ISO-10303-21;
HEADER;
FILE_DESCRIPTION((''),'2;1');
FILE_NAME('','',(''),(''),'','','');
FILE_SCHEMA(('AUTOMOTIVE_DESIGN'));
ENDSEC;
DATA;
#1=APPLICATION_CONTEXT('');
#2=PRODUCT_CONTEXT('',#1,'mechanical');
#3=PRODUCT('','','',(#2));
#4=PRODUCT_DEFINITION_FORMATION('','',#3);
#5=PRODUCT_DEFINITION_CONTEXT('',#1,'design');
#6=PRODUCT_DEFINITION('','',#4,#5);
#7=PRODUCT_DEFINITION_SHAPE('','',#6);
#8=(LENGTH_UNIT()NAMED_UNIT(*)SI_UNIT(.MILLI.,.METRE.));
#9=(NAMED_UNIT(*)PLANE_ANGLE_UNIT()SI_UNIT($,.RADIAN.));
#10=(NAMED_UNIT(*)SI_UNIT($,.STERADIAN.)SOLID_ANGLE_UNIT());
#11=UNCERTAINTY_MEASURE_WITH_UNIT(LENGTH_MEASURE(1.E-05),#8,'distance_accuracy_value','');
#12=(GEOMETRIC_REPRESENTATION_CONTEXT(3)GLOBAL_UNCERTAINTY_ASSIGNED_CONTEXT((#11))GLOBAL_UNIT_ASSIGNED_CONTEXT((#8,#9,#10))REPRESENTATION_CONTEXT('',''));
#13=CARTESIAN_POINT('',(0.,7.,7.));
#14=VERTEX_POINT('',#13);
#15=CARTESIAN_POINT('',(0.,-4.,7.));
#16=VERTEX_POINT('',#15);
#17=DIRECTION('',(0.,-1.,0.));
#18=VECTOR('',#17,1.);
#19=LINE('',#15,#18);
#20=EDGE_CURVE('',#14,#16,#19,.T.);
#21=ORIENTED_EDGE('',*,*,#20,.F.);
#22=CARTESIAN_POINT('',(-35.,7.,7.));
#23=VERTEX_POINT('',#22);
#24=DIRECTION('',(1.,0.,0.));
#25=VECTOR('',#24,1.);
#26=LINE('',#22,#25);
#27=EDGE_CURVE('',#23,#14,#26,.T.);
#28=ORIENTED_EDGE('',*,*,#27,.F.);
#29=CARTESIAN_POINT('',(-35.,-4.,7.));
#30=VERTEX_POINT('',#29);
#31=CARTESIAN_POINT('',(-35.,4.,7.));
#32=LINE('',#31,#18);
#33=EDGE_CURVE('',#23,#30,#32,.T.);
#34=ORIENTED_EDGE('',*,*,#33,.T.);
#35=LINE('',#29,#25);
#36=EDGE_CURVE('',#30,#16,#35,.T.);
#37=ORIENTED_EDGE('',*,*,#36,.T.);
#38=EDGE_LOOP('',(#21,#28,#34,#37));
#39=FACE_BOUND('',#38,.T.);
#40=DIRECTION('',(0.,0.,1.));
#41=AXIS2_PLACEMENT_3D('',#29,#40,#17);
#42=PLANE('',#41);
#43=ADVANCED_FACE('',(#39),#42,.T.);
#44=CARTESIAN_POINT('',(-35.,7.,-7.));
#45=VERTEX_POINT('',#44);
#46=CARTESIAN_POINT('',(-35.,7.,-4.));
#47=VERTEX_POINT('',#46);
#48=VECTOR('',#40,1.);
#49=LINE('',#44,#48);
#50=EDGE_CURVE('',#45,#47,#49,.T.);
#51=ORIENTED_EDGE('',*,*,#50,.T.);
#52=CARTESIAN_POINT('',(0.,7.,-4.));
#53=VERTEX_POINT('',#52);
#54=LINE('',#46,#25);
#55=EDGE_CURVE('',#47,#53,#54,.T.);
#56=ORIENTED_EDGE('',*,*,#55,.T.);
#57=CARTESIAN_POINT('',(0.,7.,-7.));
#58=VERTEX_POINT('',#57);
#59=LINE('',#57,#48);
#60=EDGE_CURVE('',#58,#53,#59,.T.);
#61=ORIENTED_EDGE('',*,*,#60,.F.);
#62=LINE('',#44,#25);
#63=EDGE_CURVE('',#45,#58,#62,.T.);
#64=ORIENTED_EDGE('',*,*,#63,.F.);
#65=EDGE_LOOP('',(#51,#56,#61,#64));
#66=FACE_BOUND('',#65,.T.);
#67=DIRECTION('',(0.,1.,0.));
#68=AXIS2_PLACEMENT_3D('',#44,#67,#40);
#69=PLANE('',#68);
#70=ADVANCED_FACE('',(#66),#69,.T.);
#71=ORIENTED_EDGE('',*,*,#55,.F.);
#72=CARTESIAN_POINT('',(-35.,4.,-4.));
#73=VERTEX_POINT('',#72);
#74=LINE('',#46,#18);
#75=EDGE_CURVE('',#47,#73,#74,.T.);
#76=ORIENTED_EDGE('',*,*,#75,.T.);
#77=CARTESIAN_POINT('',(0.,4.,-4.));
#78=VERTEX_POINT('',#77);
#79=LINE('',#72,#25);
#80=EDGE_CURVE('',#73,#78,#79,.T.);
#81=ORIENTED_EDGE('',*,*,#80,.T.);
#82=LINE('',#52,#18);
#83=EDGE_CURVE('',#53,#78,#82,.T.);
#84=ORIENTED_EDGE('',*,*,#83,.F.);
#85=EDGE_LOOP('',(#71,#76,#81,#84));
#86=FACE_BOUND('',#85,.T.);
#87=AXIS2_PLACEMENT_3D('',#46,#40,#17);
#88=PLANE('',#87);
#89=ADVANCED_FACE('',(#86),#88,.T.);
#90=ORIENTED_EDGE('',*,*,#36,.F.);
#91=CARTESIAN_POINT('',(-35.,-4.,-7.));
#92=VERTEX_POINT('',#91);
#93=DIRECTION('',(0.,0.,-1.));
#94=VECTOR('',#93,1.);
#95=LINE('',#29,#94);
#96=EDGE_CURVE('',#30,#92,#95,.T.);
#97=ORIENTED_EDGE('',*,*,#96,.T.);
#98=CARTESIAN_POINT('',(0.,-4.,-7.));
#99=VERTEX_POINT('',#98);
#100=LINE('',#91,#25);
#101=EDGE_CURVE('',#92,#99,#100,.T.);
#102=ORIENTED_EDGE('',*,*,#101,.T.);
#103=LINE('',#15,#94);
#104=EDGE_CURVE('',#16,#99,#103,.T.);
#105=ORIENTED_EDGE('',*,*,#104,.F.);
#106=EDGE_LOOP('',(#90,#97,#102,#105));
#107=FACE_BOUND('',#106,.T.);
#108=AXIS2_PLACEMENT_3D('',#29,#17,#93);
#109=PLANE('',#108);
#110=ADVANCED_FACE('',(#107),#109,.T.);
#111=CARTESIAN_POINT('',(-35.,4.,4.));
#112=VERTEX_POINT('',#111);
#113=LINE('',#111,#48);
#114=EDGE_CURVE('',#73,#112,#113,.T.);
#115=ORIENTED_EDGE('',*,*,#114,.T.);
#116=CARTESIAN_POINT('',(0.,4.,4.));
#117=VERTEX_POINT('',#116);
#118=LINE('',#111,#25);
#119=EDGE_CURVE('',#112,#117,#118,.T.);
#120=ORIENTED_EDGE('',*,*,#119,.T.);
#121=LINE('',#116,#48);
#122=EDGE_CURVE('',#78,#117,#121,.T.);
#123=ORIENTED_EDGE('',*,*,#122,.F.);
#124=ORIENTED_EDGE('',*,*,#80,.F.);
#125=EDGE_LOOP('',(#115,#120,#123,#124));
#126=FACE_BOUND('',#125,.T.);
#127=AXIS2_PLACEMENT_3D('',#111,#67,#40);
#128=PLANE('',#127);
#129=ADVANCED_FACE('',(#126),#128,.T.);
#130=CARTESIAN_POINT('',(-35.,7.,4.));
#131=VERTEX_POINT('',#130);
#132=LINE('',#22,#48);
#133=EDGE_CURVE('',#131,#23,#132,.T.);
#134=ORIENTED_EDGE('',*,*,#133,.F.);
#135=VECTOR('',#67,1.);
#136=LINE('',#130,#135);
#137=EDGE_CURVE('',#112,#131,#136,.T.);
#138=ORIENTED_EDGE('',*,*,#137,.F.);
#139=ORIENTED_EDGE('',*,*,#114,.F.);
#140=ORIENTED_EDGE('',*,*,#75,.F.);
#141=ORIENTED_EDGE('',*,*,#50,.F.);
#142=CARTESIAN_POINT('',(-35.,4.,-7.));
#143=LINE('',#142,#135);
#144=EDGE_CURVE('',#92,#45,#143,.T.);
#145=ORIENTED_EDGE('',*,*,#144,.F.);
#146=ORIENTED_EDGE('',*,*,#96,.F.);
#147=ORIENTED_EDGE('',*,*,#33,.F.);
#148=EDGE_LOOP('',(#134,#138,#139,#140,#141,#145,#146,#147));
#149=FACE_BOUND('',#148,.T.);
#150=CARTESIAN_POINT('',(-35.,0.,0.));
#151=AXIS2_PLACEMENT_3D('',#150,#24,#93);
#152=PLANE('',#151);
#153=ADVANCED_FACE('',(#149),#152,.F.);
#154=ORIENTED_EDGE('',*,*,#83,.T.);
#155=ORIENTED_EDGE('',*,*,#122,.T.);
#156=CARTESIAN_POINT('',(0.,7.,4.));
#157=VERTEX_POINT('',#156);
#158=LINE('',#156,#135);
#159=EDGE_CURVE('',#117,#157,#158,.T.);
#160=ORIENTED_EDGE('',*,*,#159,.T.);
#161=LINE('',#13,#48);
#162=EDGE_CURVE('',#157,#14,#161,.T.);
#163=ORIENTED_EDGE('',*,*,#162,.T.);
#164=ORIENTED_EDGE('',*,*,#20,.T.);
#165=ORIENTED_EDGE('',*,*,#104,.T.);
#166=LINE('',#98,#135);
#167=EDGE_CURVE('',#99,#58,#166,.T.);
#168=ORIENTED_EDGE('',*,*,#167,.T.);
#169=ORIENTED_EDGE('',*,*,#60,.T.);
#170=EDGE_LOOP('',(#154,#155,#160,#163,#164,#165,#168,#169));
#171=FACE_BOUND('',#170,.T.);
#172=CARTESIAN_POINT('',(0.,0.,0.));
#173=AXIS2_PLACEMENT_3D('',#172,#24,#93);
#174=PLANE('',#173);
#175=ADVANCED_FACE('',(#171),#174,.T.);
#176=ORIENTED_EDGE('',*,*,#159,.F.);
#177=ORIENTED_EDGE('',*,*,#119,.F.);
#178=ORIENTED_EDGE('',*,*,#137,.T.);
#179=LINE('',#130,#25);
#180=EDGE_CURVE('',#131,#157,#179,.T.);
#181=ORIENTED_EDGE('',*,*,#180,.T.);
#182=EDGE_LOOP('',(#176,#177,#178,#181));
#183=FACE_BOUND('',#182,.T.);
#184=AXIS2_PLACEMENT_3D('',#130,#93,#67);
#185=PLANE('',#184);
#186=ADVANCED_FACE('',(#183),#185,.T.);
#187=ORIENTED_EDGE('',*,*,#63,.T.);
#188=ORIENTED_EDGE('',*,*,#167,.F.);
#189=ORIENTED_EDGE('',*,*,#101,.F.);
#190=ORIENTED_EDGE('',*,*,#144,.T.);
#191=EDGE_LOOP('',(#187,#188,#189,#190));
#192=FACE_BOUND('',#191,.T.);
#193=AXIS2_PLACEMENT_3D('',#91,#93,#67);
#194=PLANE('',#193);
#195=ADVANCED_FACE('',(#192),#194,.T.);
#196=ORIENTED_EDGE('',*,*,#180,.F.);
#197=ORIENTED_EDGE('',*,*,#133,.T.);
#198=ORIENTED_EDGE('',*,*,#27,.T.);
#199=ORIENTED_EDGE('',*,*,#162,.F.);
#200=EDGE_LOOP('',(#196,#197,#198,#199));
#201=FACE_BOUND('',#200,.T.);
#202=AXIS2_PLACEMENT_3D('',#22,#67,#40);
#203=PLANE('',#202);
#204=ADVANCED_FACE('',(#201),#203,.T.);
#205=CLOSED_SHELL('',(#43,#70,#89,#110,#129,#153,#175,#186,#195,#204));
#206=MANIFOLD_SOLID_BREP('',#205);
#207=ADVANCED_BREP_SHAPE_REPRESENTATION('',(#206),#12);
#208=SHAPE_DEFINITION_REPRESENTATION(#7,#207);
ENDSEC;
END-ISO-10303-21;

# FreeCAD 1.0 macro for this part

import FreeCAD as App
import Part
import Sketcher

V = App.Vector


def add_polygon(sketch, points):
    """Adds a closed chain of lines whose ends are joined by coincident constraints."""
    first, n = sketch.GeometryCount, len(points)
    for a, b in zip(points, points[1:] + points[:1]):
        sketch.addGeometry(Part.LineSegment(App.Vector(*a, 0), App.Vector(*b, 0)), False)
    for i in range(n):
        sketch.addConstraint(Sketcher.Constraint("Coincident", first + i, 2, first + (i + 1) % n, 1))

doc = App.newDocument("Part")
body = doc.addObject("PartDesign::Body", "Body")

sketch1 = body.newObject("Sketcher::SketchObject", "Sketch")
sketch1.AttachmentSupport = (doc.getObject("YZ_Plane"), [""])
sketch1.MapMode = "FlatFace"
add_polygon(sketch1, [(7, 7), (-4, 7), (-4, -7), (7, -7), (7, -4), (4, -4), (4, 4), (7, 4)])
sketch1.addConstraint(Sketcher.Constraint("Horizontal", 0))
sketch1.addConstraint(Sketcher.Constraint("Vertical", 1))
sketch1.addConstraint(Sketcher.Constraint("Horizontal", 2))
sketch1.addConstraint(Sketcher.Constraint("Vertical", 3))
sketch1.addConstraint(Sketcher.Constraint("Horizontal", 4))
sketch1.addConstraint(Sketcher.Constraint("Vertical", 5))
sketch1.addConstraint(Sketcher.Constraint("Horizontal", 6))
sketch1.addConstraint(Sketcher.Constraint("Vertical", 7))
sketch1.addConstraint(Sketcher.Constraint("Symmetric", 3, 2, 6, 2, -1))
sketch1.addConstraint(Sketcher.Constraint("Equal", 6, 3))
sketch1.addConstraint(Sketcher.Constraint("Equal", 3, 7))
sketch1.addConstraint(Sketcher.Constraint("DistanceX", 0, 2, 0, 1, 11.0))
sketch1.addConstraint(Sketcher.Constraint("DistanceX", 4, 2, 4, 1, 3.0))
sketch1.addConstraint(Sketcher.Constraint("DistanceY", 1, 2, 1, 1, 14.0))
sketch1.addConstraint(Sketcher.Constraint("DistanceX", 0, 2, -1, 1, 4.0))
pad1 = body.newObject("PartDesign::Pad", "Pad")
pad1.Profile = sketch1
pad1.Length = 35
pad1.Reversed = True

doc.recompute()
